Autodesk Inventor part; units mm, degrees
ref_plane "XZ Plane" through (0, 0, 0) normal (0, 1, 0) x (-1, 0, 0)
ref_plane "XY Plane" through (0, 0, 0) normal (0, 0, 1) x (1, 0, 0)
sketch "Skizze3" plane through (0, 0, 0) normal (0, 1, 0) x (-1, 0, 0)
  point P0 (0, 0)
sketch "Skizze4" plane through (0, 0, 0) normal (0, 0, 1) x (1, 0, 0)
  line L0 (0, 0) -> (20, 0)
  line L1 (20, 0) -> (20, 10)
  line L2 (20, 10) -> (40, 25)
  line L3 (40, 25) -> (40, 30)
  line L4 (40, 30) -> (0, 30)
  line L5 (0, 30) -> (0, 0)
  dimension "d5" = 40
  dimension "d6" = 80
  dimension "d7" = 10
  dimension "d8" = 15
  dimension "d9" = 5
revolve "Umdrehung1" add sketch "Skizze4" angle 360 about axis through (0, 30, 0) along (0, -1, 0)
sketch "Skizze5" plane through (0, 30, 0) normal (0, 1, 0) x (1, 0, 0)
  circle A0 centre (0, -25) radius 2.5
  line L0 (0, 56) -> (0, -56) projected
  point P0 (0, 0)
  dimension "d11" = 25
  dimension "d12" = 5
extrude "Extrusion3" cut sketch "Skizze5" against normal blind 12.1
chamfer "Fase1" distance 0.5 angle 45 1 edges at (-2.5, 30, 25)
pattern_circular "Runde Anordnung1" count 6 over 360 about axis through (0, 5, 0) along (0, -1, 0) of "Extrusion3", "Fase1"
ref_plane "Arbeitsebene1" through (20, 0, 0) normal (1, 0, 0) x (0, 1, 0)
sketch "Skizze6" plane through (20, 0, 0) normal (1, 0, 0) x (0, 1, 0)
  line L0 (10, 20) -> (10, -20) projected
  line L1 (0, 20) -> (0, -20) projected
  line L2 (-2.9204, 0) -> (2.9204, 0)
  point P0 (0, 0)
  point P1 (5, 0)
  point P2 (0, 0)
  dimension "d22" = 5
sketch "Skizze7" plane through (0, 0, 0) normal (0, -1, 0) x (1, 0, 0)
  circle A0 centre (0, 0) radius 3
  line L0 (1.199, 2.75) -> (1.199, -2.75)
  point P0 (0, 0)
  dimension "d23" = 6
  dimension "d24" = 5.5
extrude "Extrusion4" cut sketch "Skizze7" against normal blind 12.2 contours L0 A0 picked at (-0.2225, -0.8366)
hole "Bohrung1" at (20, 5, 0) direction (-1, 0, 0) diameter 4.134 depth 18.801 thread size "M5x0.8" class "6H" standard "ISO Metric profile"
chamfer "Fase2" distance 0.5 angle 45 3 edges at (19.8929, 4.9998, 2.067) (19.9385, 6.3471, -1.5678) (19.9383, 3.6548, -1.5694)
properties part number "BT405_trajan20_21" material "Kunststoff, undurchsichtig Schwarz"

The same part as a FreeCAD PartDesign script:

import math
import FreeCAD as App
import Part
import Sketcher


def edges_at(feature, points):
    """Names of the edges that pass closest to the given points."""
    edges = feature.Shape.Edges
    near = lambda p: min(range(len(edges)), key=lambda i: edges[i].distToShape(Part.Vertex(*p))[0])
    return sorted({f"Edge{near(p) + 1}" for p in points})

doc = App.newDocument("Part")
body = doc.addObject("PartDesign::Body", "Body")

sketch1 = doc.addObject("Sketcher::SketchObject", "Sketch")
body.addObject(sketch1)
sketch1.AttachmentSupport = (doc.XY_Plane, [""])
sketch1.MapMode = "FlatFace"
sketch1.addGeometry(Part.LineSegment(App.Vector(0, 30, 0), App.Vector(0, 0, 0)), False)
sketch1.addGeometry(Part.LineSegment(App.Vector(0, 0, 0), App.Vector(20, 0, 0)), False)
sketch1.addGeometry(Part.LineSegment(App.Vector(20, 0, 0), App.Vector(20, 10, 0)), False)
sketch1.addGeometry(Part.LineSegment(App.Vector(20, 10, 0), App.Vector(40, 25, 0)), False)
sketch1.addGeometry(Part.LineSegment(App.Vector(40, 25, 0), App.Vector(40, 30, 0)), False)
sketch1.addGeometry(Part.LineSegment(App.Vector(40, 30, 0), App.Vector(0, 30, 0)), False)
sketch1.addConstraint(Sketcher.Constraint("Coincident", 0, 2, 1, 1))
sketch1.addConstraint(Sketcher.Constraint("Coincident", 1, 2, 2, 1))
sketch1.addConstraint(Sketcher.Constraint("Coincident", 2, 2, 3, 1))
sketch1.addConstraint(Sketcher.Constraint("Coincident", 3, 2, 4, 1))
sketch1.addConstraint(Sketcher.Constraint("Coincident", 4, 2, 5, 1))
sketch1.addConstraint(Sketcher.Constraint("Coincident", 5, 2, 0, 1))
sketch1.addConstraint(Sketcher.Constraint("Vertical", 0))
sketch1.addConstraint(Sketcher.Constraint("Horizontal", 1))
sketch1.addConstraint(Sketcher.Constraint("Vertical", 2))
sketch1.addConstraint(Sketcher.Constraint("Vertical", 4))
sketch1.addConstraint(Sketcher.Constraint("Horizontal", 5))
sketch1.addConstraint(Sketcher.Constraint("Coincident", 0, 2, -1, 1))
sketch1.addConstraint(Sketcher.Constraint("DistanceX", 5, 2, 5, 1, 40.0))
sketch1.addConstraint(Sketcher.Constraint("DistanceY", 2, 1, 2, 2, 10.0))
sketch1.addConstraint(Sketcher.Constraint("DistanceY", 4, 1, 4, 2, 5.0))
sketch1.addConstraint(Sketcher.Constraint("DistanceY", 2, 2, 3, 2, 15.0))
sketch1.addConstraint(Sketcher.Constraint("DistanceX", 1, 1, 1, 2, 20.0))
revolution = doc.addObject("PartDesign::Revolution", "Revolution")
body.addObject(revolution)
revolution.Profile = sketch1
revolution.ReferenceAxis = (sketch1, ["V_Axis"])
revolution.Angle = 360

sketch2 = doc.addObject("Sketcher::SketchObject", "Sketch001")
body.addObject(sketch2)
sketch2.AttachmentSupport = (doc.XZ_Plane, [""])
sketch2.MapMode = "FlatFace"
sketch2.AttachmentOffset = App.Placement(App.Vector(0, 0, -30), App.Rotation())
sketch2.addGeometry(Part.Circle(App.Vector(0, 25, 0), App.Vector(0, 0, 1), 2.5), False)
sketch2.addConstraint(Sketcher.Constraint("PointOnObject", 0, 3, -2))
sketch2.addConstraint(Sketcher.Constraint("Diameter", 0, 5.0))
sketch2.addConstraint(Sketcher.Constraint("DistanceY", -1, 1, 0, 3, 25.0))
pocket1 = doc.addObject("PartDesign::Pocket", "Pocket")
body.addObject(pocket1)
pocket1.Profile = sketch2
pocket1.Length = 12.1
pocket1.Reversed = True
doc.recompute()

chamfer = doc.addObject("PartDesign::Chamfer", "Chamfer")
body.addObject(chamfer)
chamfer.Base = (pocket1, edges_at(pocket1, [(-2.5, 30, 25)]))
chamfer.Size = 0.5
doc.recompute()

polarpattern = doc.addObject("PartDesign::PolarPattern", "PolarPattern")
body.addObject(polarpattern)
polarpattern.Originals = [pocket1, chamfer]
polarpattern.Axis = (doc.Y_Axis, [""])
polarpattern.Angle = 360
polarpattern.Occurrences = 6
body.Tip = polarpattern

sketch3 = doc.addObject("Sketcher::SketchObject", "Sketch002")
body.addObject(sketch3)
sketch3.AttachmentSupport = (doc.XZ_Plane, [""])
sketch3.MapMode = "FlatFace"
sketch3.addGeometry(Part.LineSegment(App.Vector(1.199, -2.75, 0), App.Vector(1.199, 2.75, 0)), False)
sketch3.addGeometry(Part.ArcOfCircle(Part.Circle(App.Vector(0, 0, 0), App.Vector(0, 0, 1), 3), math.radians(66.442798), math.radians(293.557202)), False)
sketch3.addConstraint(Sketcher.Constraint("Coincident", 0, 1, 1, 2))
sketch3.addConstraint(Sketcher.Constraint("Coincident", 1, 1, 0, 2))
sketch3.addConstraint(Sketcher.Constraint("Vertical", 0))
sketch3.addConstraint(Sketcher.Constraint("Coincident", 1, 3, -1, 1))
sketch3.addConstraint(Sketcher.Constraint("Radius", 1, 3.0))
sketch3.addConstraint(Sketcher.Constraint("DistanceY", 0, 1, 0, 2, 5.5))
pocket2 = doc.addObject("PartDesign::Pocket", "Pocket001")
body.addObject(pocket2)
pocket2.Profile = sketch3
pocket2.Length = 12.2

sketch4 = doc.addObject("Sketcher::SketchObject", "Sketch003")
body.addObject(sketch4)
sketch4.AttachmentSupport = (doc.YZ_Plane, [""])
sketch4.MapMode = "FlatFace"
sketch4.AttachmentOffset = App.Placement(App.Vector(0, 0, 20), App.Rotation())
sketch4.addGeometry(Part.Circle(App.Vector(5, 0, 0), App.Vector(0, 0, 1), 2.067), False)
sketch4.addConstraint(Sketcher.Constraint("PointOnObject", 0, 3, -1))
sketch4.addConstraint(Sketcher.Constraint("Diameter", 0, 4.134))
sketch4.addConstraint(Sketcher.Constraint("DistanceX", -1, 1, 0, 3, 5.0))
doc.recompute()
hole = doc.addObject("PartDesign::Hole", "Hole")
body.addObject(hole)
hole.Profile = sketch4
hole.ThreadType = "None"
hole.Diameter = 4.134
hole.DepthType = "Dimension"
hole.Depth = 18.801
hole.DrillPoint = "Flat"
doc.recompute()

chamfer2 = doc.addObject("PartDesign::Chamfer", "Chamfer001")
body.addObject(chamfer2)
chamfer2.Base = (hole, edges_at(hole, [(19.893, 5, 2.067), (19.939, 6.347, -1.568), (19.938, 3.655, -1.569)]))
chamfer2.Size = 0.5

doc.recompute()
